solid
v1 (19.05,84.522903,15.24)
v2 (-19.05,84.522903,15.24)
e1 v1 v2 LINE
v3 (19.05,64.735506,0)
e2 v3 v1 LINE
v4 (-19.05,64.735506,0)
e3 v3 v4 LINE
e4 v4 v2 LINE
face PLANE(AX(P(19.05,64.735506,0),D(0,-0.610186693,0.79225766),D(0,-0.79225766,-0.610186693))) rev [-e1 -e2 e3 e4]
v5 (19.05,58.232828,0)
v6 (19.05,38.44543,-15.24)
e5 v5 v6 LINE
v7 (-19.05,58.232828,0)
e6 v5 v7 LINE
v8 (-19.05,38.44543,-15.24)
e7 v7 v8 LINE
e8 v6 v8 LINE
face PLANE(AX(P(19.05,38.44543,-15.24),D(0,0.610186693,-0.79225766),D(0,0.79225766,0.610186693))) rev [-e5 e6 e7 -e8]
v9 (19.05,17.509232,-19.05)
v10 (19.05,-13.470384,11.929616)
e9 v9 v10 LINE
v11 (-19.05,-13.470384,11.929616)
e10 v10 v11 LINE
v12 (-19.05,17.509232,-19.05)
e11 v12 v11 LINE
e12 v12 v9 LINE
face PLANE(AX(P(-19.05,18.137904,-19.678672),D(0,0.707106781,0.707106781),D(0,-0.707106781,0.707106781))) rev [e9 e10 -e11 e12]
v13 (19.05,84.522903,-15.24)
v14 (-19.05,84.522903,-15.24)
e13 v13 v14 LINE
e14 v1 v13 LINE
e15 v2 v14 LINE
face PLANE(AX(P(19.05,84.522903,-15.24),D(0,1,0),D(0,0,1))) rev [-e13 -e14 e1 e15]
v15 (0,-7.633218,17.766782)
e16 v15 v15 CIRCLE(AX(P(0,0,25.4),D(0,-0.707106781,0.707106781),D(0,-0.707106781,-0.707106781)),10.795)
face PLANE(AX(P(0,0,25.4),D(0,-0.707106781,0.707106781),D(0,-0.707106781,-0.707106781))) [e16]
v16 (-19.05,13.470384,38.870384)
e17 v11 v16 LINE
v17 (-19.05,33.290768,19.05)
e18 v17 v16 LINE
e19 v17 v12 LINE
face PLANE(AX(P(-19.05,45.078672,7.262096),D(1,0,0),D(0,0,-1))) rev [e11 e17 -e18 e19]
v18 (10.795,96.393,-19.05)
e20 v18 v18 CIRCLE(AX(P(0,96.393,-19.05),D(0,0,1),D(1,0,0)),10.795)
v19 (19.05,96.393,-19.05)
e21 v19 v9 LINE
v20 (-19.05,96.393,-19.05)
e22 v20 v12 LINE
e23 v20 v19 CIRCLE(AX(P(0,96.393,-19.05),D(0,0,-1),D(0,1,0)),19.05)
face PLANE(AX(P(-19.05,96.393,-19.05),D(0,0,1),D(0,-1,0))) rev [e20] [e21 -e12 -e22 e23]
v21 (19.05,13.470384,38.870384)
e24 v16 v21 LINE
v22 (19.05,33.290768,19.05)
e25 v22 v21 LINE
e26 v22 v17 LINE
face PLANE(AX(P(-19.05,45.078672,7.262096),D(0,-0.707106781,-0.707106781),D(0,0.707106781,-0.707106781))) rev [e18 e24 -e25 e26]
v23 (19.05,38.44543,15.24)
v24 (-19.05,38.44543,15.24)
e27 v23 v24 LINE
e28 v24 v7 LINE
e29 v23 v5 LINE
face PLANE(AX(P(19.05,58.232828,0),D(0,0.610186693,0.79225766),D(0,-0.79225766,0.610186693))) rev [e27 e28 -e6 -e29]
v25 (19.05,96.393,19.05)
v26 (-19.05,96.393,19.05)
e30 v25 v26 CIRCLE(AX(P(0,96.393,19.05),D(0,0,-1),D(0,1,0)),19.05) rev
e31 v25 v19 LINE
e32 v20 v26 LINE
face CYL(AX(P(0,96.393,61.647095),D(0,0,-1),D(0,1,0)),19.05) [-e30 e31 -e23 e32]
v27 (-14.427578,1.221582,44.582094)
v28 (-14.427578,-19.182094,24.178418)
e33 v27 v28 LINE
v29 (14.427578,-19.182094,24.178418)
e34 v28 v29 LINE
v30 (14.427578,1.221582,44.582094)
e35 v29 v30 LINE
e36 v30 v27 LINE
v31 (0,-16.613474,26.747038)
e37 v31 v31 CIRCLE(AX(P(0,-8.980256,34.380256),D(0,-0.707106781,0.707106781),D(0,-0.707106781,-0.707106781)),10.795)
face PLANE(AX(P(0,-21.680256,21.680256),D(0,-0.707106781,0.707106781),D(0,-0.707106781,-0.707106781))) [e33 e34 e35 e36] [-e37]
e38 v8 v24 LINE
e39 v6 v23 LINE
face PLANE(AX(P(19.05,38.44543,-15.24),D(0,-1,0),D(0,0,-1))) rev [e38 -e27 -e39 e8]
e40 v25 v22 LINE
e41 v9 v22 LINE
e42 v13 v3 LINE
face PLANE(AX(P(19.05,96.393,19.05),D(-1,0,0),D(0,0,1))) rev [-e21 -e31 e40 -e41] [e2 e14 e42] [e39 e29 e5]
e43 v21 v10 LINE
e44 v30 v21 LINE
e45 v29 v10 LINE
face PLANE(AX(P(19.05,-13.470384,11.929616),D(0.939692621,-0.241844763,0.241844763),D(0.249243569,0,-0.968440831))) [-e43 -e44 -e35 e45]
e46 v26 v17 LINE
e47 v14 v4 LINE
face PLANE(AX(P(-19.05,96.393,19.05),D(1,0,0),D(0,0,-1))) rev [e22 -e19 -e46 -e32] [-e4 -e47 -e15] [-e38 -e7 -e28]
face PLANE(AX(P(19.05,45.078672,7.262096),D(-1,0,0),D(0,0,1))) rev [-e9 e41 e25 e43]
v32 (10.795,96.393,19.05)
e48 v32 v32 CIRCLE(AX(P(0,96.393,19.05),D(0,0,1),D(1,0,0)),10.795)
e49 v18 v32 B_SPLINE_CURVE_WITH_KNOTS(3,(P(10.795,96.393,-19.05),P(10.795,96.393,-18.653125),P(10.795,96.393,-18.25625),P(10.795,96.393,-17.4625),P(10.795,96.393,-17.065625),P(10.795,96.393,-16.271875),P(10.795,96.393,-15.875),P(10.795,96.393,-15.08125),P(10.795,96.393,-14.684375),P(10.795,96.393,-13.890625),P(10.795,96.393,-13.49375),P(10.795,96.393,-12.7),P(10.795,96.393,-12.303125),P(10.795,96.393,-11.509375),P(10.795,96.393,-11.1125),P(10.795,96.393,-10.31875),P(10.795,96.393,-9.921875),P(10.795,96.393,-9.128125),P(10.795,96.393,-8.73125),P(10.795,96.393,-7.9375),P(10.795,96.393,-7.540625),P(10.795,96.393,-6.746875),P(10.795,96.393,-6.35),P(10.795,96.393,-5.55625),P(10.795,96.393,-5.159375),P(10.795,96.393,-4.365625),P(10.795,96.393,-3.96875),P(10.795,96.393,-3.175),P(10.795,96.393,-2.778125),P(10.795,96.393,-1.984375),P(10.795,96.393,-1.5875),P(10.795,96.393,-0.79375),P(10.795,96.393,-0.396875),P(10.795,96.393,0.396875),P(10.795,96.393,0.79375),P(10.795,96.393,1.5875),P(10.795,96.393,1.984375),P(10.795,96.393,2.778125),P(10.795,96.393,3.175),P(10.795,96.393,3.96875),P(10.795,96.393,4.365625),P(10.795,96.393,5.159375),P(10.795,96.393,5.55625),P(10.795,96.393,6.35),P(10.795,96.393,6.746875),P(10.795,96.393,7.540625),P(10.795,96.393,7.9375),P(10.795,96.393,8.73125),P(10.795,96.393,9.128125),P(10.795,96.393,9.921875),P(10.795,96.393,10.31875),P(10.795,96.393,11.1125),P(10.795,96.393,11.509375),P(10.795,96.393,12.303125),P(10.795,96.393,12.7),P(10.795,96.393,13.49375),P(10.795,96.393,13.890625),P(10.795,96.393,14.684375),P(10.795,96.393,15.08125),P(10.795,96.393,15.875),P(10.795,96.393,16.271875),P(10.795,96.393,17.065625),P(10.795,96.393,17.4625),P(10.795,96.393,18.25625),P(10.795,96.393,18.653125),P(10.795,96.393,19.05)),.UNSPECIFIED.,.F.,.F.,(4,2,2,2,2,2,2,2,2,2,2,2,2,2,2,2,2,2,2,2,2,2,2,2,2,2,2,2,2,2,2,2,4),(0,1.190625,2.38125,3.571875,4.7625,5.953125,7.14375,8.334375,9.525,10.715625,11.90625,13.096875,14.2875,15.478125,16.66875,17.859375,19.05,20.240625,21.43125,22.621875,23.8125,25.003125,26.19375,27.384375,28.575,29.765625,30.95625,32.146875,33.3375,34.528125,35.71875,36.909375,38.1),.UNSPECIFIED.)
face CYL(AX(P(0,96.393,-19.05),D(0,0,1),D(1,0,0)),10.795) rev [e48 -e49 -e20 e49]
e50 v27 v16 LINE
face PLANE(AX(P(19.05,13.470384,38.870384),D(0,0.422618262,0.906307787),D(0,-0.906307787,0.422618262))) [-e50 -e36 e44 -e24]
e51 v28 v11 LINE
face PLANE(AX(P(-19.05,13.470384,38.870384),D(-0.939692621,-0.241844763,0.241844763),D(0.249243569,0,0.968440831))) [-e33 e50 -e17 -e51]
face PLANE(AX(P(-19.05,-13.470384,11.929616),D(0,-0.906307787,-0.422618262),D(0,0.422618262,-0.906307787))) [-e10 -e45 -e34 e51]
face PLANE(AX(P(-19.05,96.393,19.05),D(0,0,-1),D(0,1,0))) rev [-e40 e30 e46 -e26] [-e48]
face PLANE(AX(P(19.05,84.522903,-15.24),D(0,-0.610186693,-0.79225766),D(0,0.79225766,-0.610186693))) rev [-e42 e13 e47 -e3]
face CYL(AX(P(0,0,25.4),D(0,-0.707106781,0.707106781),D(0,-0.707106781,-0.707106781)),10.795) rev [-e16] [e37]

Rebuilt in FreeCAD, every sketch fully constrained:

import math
import FreeCAD as App
import Part
import Sketcher

V = App.Vector
Q = App.Units.Quantity

doc = App.newDocument("Part")
body = doc.addObject("PartDesign::Body", "Body")

sketch1 = body.newObject("Sketcher::SketchObject", "Sketch")
sketch1.AttachmentSupport = (doc.getObject("XZ_Plane"), [""])
sketch1.MapMode = "FlatFace"
sketch1.AttachmentOffset = App.Placement(V(0, 0, -3.795 * 25.4), App.Rotation())
sketch1.addGeometry([
    Part.LineSegment(V(-19, -19, 0), V(-19, 19, 0)),
    Part.LineSegment(V(-19, 19, 0), V(19, 19, 0)),
    Part.LineSegment(V(19, 19, 0), V(19, -19, 0)),
    Part.LineSegment(V(19, -19, 0), V(-19, -19, 0)),
], False)
sketch1.addConstraint([
    Sketcher.Constraint("Coincident", 0, 2, 1, 1),
    Sketcher.Constraint("Coincident", 1, 2, 2, 1),
    Sketcher.Constraint("Coincident", 2, 2, 3, 1),
    Sketcher.Constraint("Coincident", 3, 2, 0, 1),
    Sketcher.Constraint("Vertical", 0),
    Sketcher.Constraint("Horizontal", 1),
    Sketcher.Constraint("Vertical", 2),
    Sketcher.Constraint("Horizontal", 3),
    Sketcher.Constraint("Symmetric", 0, 2, 2, 2, -1, 1),
    Sketcher.Constraint("Equal", 3, 0),
    Sketcher.Constraint("DistanceX", 1, 1, 1, 2, Q("1.5 in")),
])

sketch2 = body.newObject("Sketcher::SketchObject", "Sketch001")
sketch2.AttachmentSupport = (doc.getObject("YZ_Plane"), [""])
sketch2.MapMode = "FlatFace"
sketch2.addGeometry([
    Part.LineSegment(V(96, 0, 0), V(25, 0, 0)),
    Part.LineSegment(V(25, 0, 0), V(0, 25, 0)),
], False)
sketch2.addConstraint([
    Sketcher.Constraint("Coincident", 0, 2, 1, 1),
    Sketcher.Constraint("Horizontal", 0),
    Sketcher.Constraint("PointOnObject", 0, 1, -1),
    Sketcher.Constraint("PointOnObject", 1, 2, -2),
    Sketcher.Constraint("DistanceX", -1, 1, 0, 2, Q("1 in")),
    Sketcher.Constraint("DistanceY", -1, 1, 1, 2, Q("1 in")),
    Sketcher.Constraint("DistanceX", 0, 2, 0, 1, Q("2.795 in")),
])
doc.recompute()

additivepipe = body.newObject("PartDesign::AdditivePipe", "AdditivePipe")
additivepipe.Profile = sketch1
additivepipe.Spine = (sketch2, ["Edge1", "Edge2"])
additivepipe.Transition = "Right corner"

sketch3 = body.newObject("Sketcher::SketchObject", "Sketch002")
sketch3.Placement = App.Placement(V(0, -12.7, 12.7), App.Rotation(V(1, 0, 0), V(0, 0.707106781, 0.707106781), V(0, -0.707106781, 0.707106781), "ZXY"))
sketch3.addGeometry([
    Part.LineSegment(V(-19, 37, 0), V(-19, -1, 0)),
    Part.LineSegment(V(-19, -1, 0), V(19, -1, 0)),
    Part.LineSegment(V(19, -1, 0), V(19, 37, 0)),
    Part.LineSegment(V(19, 37, 0), V(-19, 37, 0)),
], False)
sketch3.addConstraint([
    Sketcher.Constraint("Coincident", 0, 2, 1, 1),
    Sketcher.Constraint("Coincident", 1, 2, 2, 1),
    Sketcher.Constraint("Coincident", 2, 2, 3, 1),
    Sketcher.Constraint("Coincident", 3, 2, 0, 1),
    Sketcher.Constraint("Vertical", 0),
    Sketcher.Constraint("Horizontal", 1),
    Sketcher.Constraint("Vertical", 2),
    Sketcher.Constraint("Horizontal", 3),
    Sketcher.Constraint("Equal", 3, 0),
    Sketcher.Constraint("DistanceX", 1, 1, 1, 2, Q("1.5 in")),
    Sketcher.Constraint("DistanceX", 0, 2, -1, 1, Q("0.75 in")),
    Sketcher.Constraint("DistanceY", 0, 2, -1, 1, Q("1.089488 mm")),
])
pad1 = body.newObject("PartDesign::Pad", "Pad")
pad1.Profile = sketch3
pad1.Length = Q("0.5 in")
pad1.TaperAngle = -20

sketch4 = body.newObject("Sketcher::SketchObject", "Sketch003")
sketch4.AttachmentSupport = (doc.getObject("XY_Plane"), [""])
sketch4.MapMode = "FlatFace"
sketch4.AttachmentOffset = App.Placement(V(0, 0, -0.75 * 25.4), App.Rotation())
sketch4.addGeometry([
    Part.LineSegment(V(19, 96, 0), V(-19, 96, 0)),
    Part.ArcOfCircle(Part.Circle(V(0, 96, 0), V(0, 0, 1), 19), math.radians(0), math.radians(180)),
], False)
sketch4.addConstraint([
    Sketcher.Constraint("Coincident", 0, 1, 1, 1),
    Sketcher.Constraint("Coincident", 1, 2, 0, 2),
    Sketcher.Constraint("Horizontal", 0),
    Sketcher.Constraint("PointOnObject", 1, 3, -2),
    Sketcher.Constraint("Horizontal", 1, 3, 0, 1),
    Sketcher.Constraint("Radius", 1, Q("0.75 in")),
    Sketcher.Constraint("DistanceY", -1, 1, 1, 3, Q("3.795 in")),
])
pad2 = body.newObject("PartDesign::Pad", "Pad001")
pad2.Profile = sketch4
pad2.Length = Q("1.5 in")

sketch5 = body.newObject("Sketcher::SketchObject", "Sketch004")
sketch5.AttachmentSupport = (doc.getObject("XY_Plane"), [""])
sketch5.MapMode = "FlatFace"
sketch5.AttachmentOffset = App.Placement(V(0, 0, 0.75 * 25.4), App.Rotation())
sketch5.addGeometry(Part.Circle(V(0, 96, 0), V(0, 0, 1), 11), False)
sketch5.addConstraint([
    Sketcher.Constraint("PointOnObject", 0, 3, -2),
    Sketcher.Constraint("Diameter", 0, Q("0.85 in")),
    Sketcher.Constraint("DistanceY", -1, 1, 0, 3, Q("3.795 in")),
])
pocket1 = body.newObject("PartDesign::Pocket", "Pocket")
pocket1.Profile = sketch5
pocket1.Length = Q("1.5 in")

sketch6 = body.newObject("Sketcher::SketchObject", "Sketch005")
sketch6.Placement = App.Placement(V(0, -21.680256, 21.680256), App.Rotation(V(1, 0, 0), V(0, 0.707106781, 0.707106781), V(0, -0.707106781, 0.707106781), "ZXY"))
sketch6.addGeometry(Part.Circle(V(0, 18, 0), V(0, 0, 1), 11), False)
sketch6.addConstraint([
    Sketcher.Constraint("PointOnObject", 0, 3, -2),
    Sketcher.Constraint("Diameter", 0, Q("0.85 in")),
    Sketcher.Constraint("DistanceY", -1, 1, 0, 3, Q("17.960512 mm")),
])
pocket2 = body.newObject("PartDesign::Pocket", "Pocket001")
pocket2.Profile = sketch6
pocket2.Length = Q("0.5 in")

sketch7 = body.newObject("Sketcher::SketchObject", "Sketch006")
sketch7.AttachmentSupport = (doc.getObject("YZ_Plane"), [""])
sketch7.MapMode = "FlatFace"
sketch7.AttachmentOffset = App.Placement(V(0, 0, -0.75 * 25.4), App.Rotation())
sketch7.addGeometry([
    Part.LineSegment(V(58, 0, 0), V(38, -15, 0)),
    Part.LineSegment(V(38, -15, 0), V(38, 15, 0)),
    Part.LineSegment(V(38, 15, 0), V(58, 0, 0)),
    Part.LineSegment(V(85, 15, 0), V(85, -15, 0)),
    Part.LineSegment(V(85, -15, 0), V(65, 0, 0)),
    Part.LineSegment(V(65, 0, 0), V(85, 15, 0)),
], False)
sketch7.addConstraint([
    Sketcher.Constraint("Coincident", 0, 2, 1, 1),
    Sketcher.Constraint("Coincident", 1, 2, 2, 1),
    Sketcher.Constraint("Coincident", 2, 2, 0, 1),
    Sketcher.Constraint("Coincident", 3, 2, 4, 1),
    Sketcher.Constraint("Coincident", 4, 2, 5, 1),
    Sketcher.Constraint("Coincident", 5, 2, 3, 1),
    Sketcher.Constraint("Vertical", 1),
    Sketcher.Constraint("Vertical", 3),
    Sketcher.Constraint("PointOnObject", 2, 2, -1),
    Sketcher.Constraint("PointOnObject", 4, 2, -1),
    Sketcher.Constraint("Parallel", 2, 4),
    Sketcher.Constraint("Parallel", 0, 5),
    Sketcher.Constraint("Horizontal", 0, 2, 3, 2),
    Sketcher.Constraint("Horizontal", 1, 2, 5, 2),
    Sketcher.Constraint("DistanceY", 1, 1, 1, 2, Q("1.2 in")),
    Sketcher.Constraint("DistanceX", -1, 1, 0, 2, Q("38.44543 mm")),
    Sketcher.Constraint("Distance", 0, Q("24.975963 mm")),
    Sketcher.Constraint("DistanceX", -1, 1, 3, 2, Q("84.522903 mm")),
])
pocket3 = body.newObject("PartDesign::Pocket", "Pocket002")
pocket3.Profile = sketch7
pocket3.Length = Q("1.5 in")
pocket3.Reversed = True

doc.recompute()
